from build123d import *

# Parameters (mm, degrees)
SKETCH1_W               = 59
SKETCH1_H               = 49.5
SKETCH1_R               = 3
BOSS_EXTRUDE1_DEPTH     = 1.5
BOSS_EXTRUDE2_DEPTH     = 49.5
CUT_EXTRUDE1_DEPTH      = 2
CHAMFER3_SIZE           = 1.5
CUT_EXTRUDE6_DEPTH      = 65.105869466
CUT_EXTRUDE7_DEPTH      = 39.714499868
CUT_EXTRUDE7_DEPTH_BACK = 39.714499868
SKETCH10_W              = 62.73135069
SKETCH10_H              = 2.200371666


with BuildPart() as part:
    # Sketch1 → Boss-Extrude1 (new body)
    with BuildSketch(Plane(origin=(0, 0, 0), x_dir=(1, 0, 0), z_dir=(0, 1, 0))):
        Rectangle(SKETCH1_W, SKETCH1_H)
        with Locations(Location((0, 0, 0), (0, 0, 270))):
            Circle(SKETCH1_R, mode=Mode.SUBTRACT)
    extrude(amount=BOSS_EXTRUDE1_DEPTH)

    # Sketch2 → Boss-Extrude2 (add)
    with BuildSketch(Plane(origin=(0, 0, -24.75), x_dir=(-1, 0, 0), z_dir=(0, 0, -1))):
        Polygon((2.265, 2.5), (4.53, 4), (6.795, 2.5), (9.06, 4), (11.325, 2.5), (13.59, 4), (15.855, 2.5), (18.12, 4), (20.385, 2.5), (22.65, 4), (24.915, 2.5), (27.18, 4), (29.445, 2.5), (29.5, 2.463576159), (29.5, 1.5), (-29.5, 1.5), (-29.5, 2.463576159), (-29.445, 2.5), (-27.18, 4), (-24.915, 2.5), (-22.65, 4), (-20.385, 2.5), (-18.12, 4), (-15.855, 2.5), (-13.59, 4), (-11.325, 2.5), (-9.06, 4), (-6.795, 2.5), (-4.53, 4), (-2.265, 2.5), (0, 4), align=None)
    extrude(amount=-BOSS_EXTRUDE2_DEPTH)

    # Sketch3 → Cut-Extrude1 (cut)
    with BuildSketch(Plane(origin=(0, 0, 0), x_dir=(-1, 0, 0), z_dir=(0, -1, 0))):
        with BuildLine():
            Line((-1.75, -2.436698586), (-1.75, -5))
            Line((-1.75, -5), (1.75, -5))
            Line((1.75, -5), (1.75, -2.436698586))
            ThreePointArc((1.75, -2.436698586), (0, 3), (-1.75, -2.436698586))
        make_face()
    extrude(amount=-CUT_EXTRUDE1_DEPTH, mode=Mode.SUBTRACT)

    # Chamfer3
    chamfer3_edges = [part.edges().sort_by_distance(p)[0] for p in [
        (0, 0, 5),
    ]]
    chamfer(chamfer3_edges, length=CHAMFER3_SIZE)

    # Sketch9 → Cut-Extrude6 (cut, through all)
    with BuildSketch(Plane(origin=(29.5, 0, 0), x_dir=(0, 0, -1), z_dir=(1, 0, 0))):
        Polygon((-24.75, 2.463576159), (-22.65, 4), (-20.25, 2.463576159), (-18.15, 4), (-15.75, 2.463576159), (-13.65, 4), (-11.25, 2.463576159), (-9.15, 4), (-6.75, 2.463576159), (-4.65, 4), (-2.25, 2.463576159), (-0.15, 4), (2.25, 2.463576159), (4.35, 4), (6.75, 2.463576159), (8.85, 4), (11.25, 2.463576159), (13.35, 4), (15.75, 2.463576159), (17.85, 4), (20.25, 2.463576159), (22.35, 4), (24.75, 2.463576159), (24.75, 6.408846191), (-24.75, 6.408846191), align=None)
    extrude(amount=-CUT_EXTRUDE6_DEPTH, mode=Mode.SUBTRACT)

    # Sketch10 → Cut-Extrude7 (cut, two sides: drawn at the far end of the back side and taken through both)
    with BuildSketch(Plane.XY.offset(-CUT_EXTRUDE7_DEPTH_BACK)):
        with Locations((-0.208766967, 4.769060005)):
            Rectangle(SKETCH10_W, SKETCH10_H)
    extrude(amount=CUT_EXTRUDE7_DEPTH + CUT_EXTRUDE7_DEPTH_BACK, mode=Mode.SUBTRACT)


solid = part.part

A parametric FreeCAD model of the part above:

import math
import FreeCAD as App
import Part
import Sketcher

V = App.Vector
Q = App.Units.Quantity


def edges_at(feature, points):
    """Names of the edges that pass closest to the given points."""
    edges = feature.Shape.Edges
    near = lambda p: min(range(len(edges)), key=lambda i: edges[i].distToShape(Part.Vertex(*p))[0])
    return sorted({f"Edge{near(p) + 1}" for p in points})


def add_polygon(sketch, points):
    """Adds a closed chain of lines whose ends are joined by coincident constraints."""
    first, n = sketch.GeometryCount, len(points)
    for a, b in zip(points, points[1:] + points[:1]):
        sketch.addGeometry(Part.LineSegment(App.Vector(*a, 0), App.Vector(*b, 0)), False)
    for i in range(n):
        sketch.addConstraint(Sketcher.Constraint("Coincident", first + i, 2, first + (i + 1) % n, 1))

doc = App.newDocument("Part")
body = doc.addObject("PartDesign::Body", "Body")

sketch1 = body.newObject("Sketcher::SketchObject", "Sketch")
sketch1.AttachmentSupport = (doc.getObject("XZ_Plane"), [""])
sketch1.MapMode = "FlatFace"
add_polygon(sketch1, [(-29.5, -24.75), (-29.5, 24.75), (29.5, 24.75), (29.5, -24.75)])
sketch1.addGeometry(Part.Circle(V(0, 0, 0), V(0, 0, 1), 3), False)
sketch1.addConstraint([
    Sketcher.Constraint("Vertical", 0),
    Sketcher.Constraint("Horizontal", 1),
    Sketcher.Constraint("Vertical", 2),
    Sketcher.Constraint("Horizontal", 3),
    Sketcher.Constraint("Coincident", 4, 3, -1, 1),
    Sketcher.Constraint("Symmetric", 0, 2, 2, 2, -1, 1),
    Sketcher.Constraint("Diameter", 4, Q("6 mm")),
    Sketcher.Constraint("DistanceX", 1, 1, 1, 2, Q("59 mm")),
    Sketcher.Constraint("DistanceY", 0, 1, 0, 2, Q("49.5 mm")),
])
pad1 = body.newObject("PartDesign::Pad", "Pad")
pad1.Profile = sketch1
pad1.Length = 1.5
pad1.Reversed = True

sketch2 = body.newObject("Sketcher::SketchObject", "Sketch001")
sketch2.AttachmentSupport = (doc.getObject("XY_Plane"), [""])
sketch2.MapMode = "FlatFace"
sketch2.AttachmentOffset = App.Placement(V(0, 0, -24.75), App.Rotation())
add_polygon(sketch2, [(-4.53, 4), (-2.265, 2.5), (0, 4), (2.265, 2.5), (4.53, 4), (6.795, 2.5), (9.06, 4), (11.325, 2.5), (13.59, 4), (15.855, 2.5), (18.12, 4), (20.385, 2.5), (22.65, 4), (24.915, 2.5), (27.18, 4), (29.445, 2.5), (29.5, 2.463576), (29.5, 1.5), (-29.5, 1.5), (-29.5, 2.463576), (-29.445, 2.5), (-27.18, 4), (-24.915, 2.5), (-22.65, 4), (-20.385, 2.5), (-18.12, 4), (-15.855, 2.5), (-13.59, 4), (-11.325, 2.5), (-9.06, 4), (-6.795, 2.5)])
sketch2.addConstraint([
    Sketcher.Constraint("Vertical", 16),
    Sketcher.Constraint("Horizontal", 17),
    Sketcher.Constraint("Vertical", 18),
    Sketcher.Constraint("Symmetric", 0, 2, 2, 2, -2),
    Sketcher.Constraint("Symmetric", 15, 2, 18, 2, -2),
    Sketcher.Constraint("Symmetric", 14, 2, 19, 2, -2),
    Sketcher.Constraint("Symmetric", 13, 2, 20, 2, -2),
    Sketcher.Constraint("Symmetric", 12, 2, 21, 2, -2),
    Sketcher.Constraint("Symmetric", 11, 2, 22, 2, -2),
    Sketcher.Constraint("Symmetric", 10, 2, 23, 2, -2),
    Sketcher.Constraint("Symmetric", 9, 2, 24, 2, -2),
    Sketcher.Constraint("Symmetric", 8, 2, 25, 2, -2),
    Sketcher.Constraint("Symmetric", 7, 2, 26, 2, -2),
    Sketcher.Constraint("Symmetric", 6, 2, 27, 2, -2),
    Sketcher.Constraint("Symmetric", 5, 2, 28, 2, -2),
    Sketcher.Constraint("Symmetric", 4, 2, 29, 2, -2),
    Sketcher.Constraint("Symmetric", 3, 2, 30, 2, -2),
    Sketcher.Constraint("PointOnObject", 1, 2, -2),
    Sketcher.Constraint("Parallel", 0, 2),
    Sketcher.Constraint("Parallel", 2, 4),
    Sketcher.Constraint("Parallel", 3, 5),
    Sketcher.Constraint("Parallel", 4, 6),
    Sketcher.Constraint("Parallel", 5, 7),
    Sketcher.Constraint("Parallel", 6, 8),
    Sketcher.Constraint("Parallel", 7, 9),
    Sketcher.Constraint("Parallel", 8, 10),
    Sketcher.Constraint("Parallel", 9, 11),
    Sketcher.Constraint("Parallel", 10, 12),
    Sketcher.Constraint("Parallel", 11, 13),
    Sketcher.Constraint("Parallel", 12, 14),
    Sketcher.Constraint("Parallel", 14, 15),
    Sketcher.Constraint("Horizontal", 1, 2, 3, 2),
    Sketcher.Constraint("Horizontal", 2, 2, 4, 2),
    Sketcher.Constraint("Horizontal", 3, 2, 5, 2),
    Sketcher.Constraint("Horizontal", 4, 2, 6, 2),
    Sketcher.Constraint("Horizontal", 5, 2, 7, 2),
    Sketcher.Constraint("Horizontal", 6, 2, 8, 2),
    Sketcher.Constraint("Horizontal", 7, 2, 9, 2),
    Sketcher.Constraint("Horizontal", 8, 2, 10, 2),
    Sketcher.Constraint("Horizontal", 9, 2, 11, 2),
    Sketcher.Constraint("Horizontal", 10, 2, 12, 2),
    Sketcher.Constraint("Horizontal", 11, 2, 13, 2),
    Sketcher.Constraint("Horizontal", 12, 2, 14, 2),
    Sketcher.Constraint("DistanceX", 17, 2, 17, 1, Q("59 mm")),
    Sketcher.Constraint("DistanceY", -1, 1, 1, 2, Q("4 mm")),
    Sketcher.Constraint("DistanceY", 16, 2, 14, 2, Q("1 mm")),
    Sketcher.Constraint("DistanceY", -1, 1, 0, 2, Q("2.5 mm")),
    Sketcher.Constraint("DistanceX", -1, 1, 3, 2, Q("4.53 mm")),
])
pad2 = body.newObject("PartDesign::Pad", "Pad001")
pad2.Profile = sketch2
pad2.Length = 49.5

sketch3 = body.newObject("Sketcher::SketchObject", "Sketch002")
sketch3.AttachmentSupport = (doc.getObject("XZ_Plane"), [""])
sketch3.MapMode = "FlatFace"
sketch3.addGeometry([
    Part.LineSegment(V(1.75, 2.436699, 0), V(1.75, 5, 0)),
    Part.LineSegment(V(1.75, 5, 0), V(-1.75, 5, 0)),
    Part.LineSegment(V(-1.75, 5, 0), V(-1.75, 2.436699, 0)),
    Part.ArcOfCircle(Part.Circle(V(0, 0, 0), V(0, 0, 1), 3), math.radians(125.685335), math.radians(414.314665)),
], False)
sketch3.addConstraint([
    Sketcher.Constraint("Coincident", 0, 2, 1, 1),
    Sketcher.Constraint("Coincident", 1, 2, 2, 1),
    Sketcher.Constraint("Coincident", 2, 2, 3, 1),
    Sketcher.Constraint("Coincident", 3, 2, 0, 1),
    Sketcher.Constraint("Vertical", 0),
    Sketcher.Constraint("Horizontal", 1),
    Sketcher.Constraint("Vertical", 2),
    Sketcher.Constraint("Coincident", 3, 3, -1, 1),
    Sketcher.Constraint("Horizontal", 2, 2, 3, 2),
    Sketcher.Constraint("Radius", 3, Q("3 mm")),
    Sketcher.Constraint("DistanceX", 1, 2, 1, 1, Q("3.5 mm")),
    Sketcher.Constraint("DistanceY", -1, 1, 0, 2, Q("5 mm")),
])
pocket1 = body.newObject("PartDesign::Pocket", "Pocket")
pocket1.Profile = sketch3
pocket1.Length = 2
doc.recompute()

chamfer = body.newObject("PartDesign::Chamfer", "Chamfer")
chamfer.Base = (pocket1, edges_at(pocket1, [(0, 0, 5)]))
chamfer.Size = 1.5

sketch4 = body.newObject("Sketcher::SketchObject", "Sketch003")
sketch4.AttachmentSupport = (doc.getObject("YZ_Plane"), [""])
sketch4.MapMode = "FlatFace"
sketch4.AttachmentOffset = App.Placement(V(0, 0, 29.5), App.Rotation())
add_polygon(sketch4, [(2.463576, 24.75), (4, 22.65), (2.463576, 20.25), (4, 18.15), (2.463576, 15.75), (4, 13.65), (2.463576, 11.25), (4, 9.15), (2.463576, 6.75), (4, 4.65), (2.463576, 2.25), (4, 0.15), (2.463576, -2.25), (4, -4.35), (2.463576, -6.75), (4, -8.85), (2.463576, -11.25), (4, -13.35), (2.463576, -15.75), (4, -17.85), (2.463576, -20.25), (4, -22.35), (2.463576, -24.75), (6.408846, -24.75), (6.408846, 24.75)])
sketch4.addConstraint([
    Sketcher.Constraint("Horizontal", 22),
    Sketcher.Constraint("Vertical", 23),
    Sketcher.Constraint("Horizontal", 24),
    Sketcher.Constraint("Symmetric", 9, 2, 11, 2, -1),
    Sketcher.Constraint("Symmetric", 7, 2, 13, 2, -1),
    Sketcher.Constraint("Symmetric", 5, 2, 15, 2, -1),
    Sketcher.Constraint("Symmetric", 3, 2, 17, 2, -1),
    Sketcher.Constraint("Symmetric", 1, 2, 19, 2, -1),
    Sketcher.Constraint("Symmetric", 21, 2, 24, 2, -1),
    Sketcher.Constraint("Parallel", 0, 2),
    Sketcher.Constraint("Parallel", 1, 3),
    Sketcher.Constraint("Parallel", 2, 4),
    Sketcher.Constraint("Parallel", 3, 5),
    Sketcher.Constraint("Parallel", 4, 6),
    Sketcher.Constraint("Parallel", 5, 7),
    Sketcher.Constraint("Parallel", 6, 8),
    Sketcher.Constraint("Parallel", 7, 9),
    Sketcher.Constraint("Parallel", 8, 10),
    Sketcher.Constraint("Parallel", 9, 11),
    Sketcher.Constraint("Parallel", 10, 12),
    Sketcher.Constraint("Parallel", 11, 13),
    Sketcher.Constraint("Parallel", 12, 14),
    Sketcher.Constraint("Parallel", 13, 15),
    Sketcher.Constraint("Parallel", 14, 16),
    Sketcher.Constraint("Parallel", 15, 17),
    Sketcher.Constraint("Parallel", 16, 18),
    Sketcher.Constraint("Parallel", 17, 19),
    Sketcher.Constraint("Parallel", 18, 20),
    Sketcher.Constraint("Parallel", 19, 21),
    Sketcher.Constraint("Vertical", 0, 2, 2, 2),
    Sketcher.Constraint("Vertical", 1, 2, 3, 2),
    Sketcher.Constraint("Vertical", 2, 2, 4, 2),
    Sketcher.Constraint("Vertical", 3, 2, 5, 2),
    Sketcher.Constraint("Vertical", 4, 2, 6, 2),
    Sketcher.Constraint("Vertical", 5, 2, 7, 2),
    Sketcher.Constraint("Vertical", 6, 2, 8, 2),
    Sketcher.Constraint("Vertical", 7, 2, 9, 2),
    Sketcher.Constraint("Vertical", 8, 2, 10, 2),
    Sketcher.Constraint("Vertical", 18, 2, 20, 2),
    Sketcher.Constraint("DistanceY", 23, 1, 23, 2, Q("49.5 mm")),
    Sketcher.Constraint("DistanceX", -1, 1, 0, 2, Q("4 mm")),
    Sketcher.Constraint("DistanceY", 1, 2, 0, 2, Q("2.4 mm")),
    Sketcher.Constraint("DistanceX", 22, 1, 22, 2, Q("3.94527 mm")),
    Sketcher.Constraint("Distance", 0, Q("2.602037 mm")),
])
pocket2 = body.newObject("PartDesign::Pocket", "Pocket001")
pocket2.Profile = sketch4
pocket2.Type = "ThroughAll"

sketch5 = body.newObject("Sketcher::SketchObject", "Sketch004")
sketch5.AttachmentSupport = (doc.getObject("XY_Plane"), [""])
sketch5.MapMode = "FlatFace"
add_polygon(sketch5, [(-31.574442, 5.869246), (-31.574442, 3.668874), (31.156908, 3.668874), (31.156908, 5.869246)])
sketch5.addConstraint([
    Sketcher.Constraint("Vertical", 0),
    Sketcher.Constraint("Horizontal", 1),
    Sketcher.Constraint("Vertical", 2),
    Sketcher.Constraint("Horizontal", 3),
    Sketcher.Constraint("DistanceX", 1, 1, 1, 2, Q("62.731351 mm")),
    Sketcher.Constraint("DistanceY", 0, 2, 0, 1, Q("2.200372 mm")),
    Sketcher.Constraint("DistanceX", -1, 1, 1, 2, Q("31.156908 mm")),
    Sketcher.Constraint("DistanceY", -1, 1, 0, 2, Q("3.668874 mm")),
])
pocket3 = body.newObject("PartDesign::Pocket", "Pocket002")
pocket3.Profile = sketch5
pocket3.Type = "ThroughAll"
pocket3.Midplane = True

doc.recompute()
